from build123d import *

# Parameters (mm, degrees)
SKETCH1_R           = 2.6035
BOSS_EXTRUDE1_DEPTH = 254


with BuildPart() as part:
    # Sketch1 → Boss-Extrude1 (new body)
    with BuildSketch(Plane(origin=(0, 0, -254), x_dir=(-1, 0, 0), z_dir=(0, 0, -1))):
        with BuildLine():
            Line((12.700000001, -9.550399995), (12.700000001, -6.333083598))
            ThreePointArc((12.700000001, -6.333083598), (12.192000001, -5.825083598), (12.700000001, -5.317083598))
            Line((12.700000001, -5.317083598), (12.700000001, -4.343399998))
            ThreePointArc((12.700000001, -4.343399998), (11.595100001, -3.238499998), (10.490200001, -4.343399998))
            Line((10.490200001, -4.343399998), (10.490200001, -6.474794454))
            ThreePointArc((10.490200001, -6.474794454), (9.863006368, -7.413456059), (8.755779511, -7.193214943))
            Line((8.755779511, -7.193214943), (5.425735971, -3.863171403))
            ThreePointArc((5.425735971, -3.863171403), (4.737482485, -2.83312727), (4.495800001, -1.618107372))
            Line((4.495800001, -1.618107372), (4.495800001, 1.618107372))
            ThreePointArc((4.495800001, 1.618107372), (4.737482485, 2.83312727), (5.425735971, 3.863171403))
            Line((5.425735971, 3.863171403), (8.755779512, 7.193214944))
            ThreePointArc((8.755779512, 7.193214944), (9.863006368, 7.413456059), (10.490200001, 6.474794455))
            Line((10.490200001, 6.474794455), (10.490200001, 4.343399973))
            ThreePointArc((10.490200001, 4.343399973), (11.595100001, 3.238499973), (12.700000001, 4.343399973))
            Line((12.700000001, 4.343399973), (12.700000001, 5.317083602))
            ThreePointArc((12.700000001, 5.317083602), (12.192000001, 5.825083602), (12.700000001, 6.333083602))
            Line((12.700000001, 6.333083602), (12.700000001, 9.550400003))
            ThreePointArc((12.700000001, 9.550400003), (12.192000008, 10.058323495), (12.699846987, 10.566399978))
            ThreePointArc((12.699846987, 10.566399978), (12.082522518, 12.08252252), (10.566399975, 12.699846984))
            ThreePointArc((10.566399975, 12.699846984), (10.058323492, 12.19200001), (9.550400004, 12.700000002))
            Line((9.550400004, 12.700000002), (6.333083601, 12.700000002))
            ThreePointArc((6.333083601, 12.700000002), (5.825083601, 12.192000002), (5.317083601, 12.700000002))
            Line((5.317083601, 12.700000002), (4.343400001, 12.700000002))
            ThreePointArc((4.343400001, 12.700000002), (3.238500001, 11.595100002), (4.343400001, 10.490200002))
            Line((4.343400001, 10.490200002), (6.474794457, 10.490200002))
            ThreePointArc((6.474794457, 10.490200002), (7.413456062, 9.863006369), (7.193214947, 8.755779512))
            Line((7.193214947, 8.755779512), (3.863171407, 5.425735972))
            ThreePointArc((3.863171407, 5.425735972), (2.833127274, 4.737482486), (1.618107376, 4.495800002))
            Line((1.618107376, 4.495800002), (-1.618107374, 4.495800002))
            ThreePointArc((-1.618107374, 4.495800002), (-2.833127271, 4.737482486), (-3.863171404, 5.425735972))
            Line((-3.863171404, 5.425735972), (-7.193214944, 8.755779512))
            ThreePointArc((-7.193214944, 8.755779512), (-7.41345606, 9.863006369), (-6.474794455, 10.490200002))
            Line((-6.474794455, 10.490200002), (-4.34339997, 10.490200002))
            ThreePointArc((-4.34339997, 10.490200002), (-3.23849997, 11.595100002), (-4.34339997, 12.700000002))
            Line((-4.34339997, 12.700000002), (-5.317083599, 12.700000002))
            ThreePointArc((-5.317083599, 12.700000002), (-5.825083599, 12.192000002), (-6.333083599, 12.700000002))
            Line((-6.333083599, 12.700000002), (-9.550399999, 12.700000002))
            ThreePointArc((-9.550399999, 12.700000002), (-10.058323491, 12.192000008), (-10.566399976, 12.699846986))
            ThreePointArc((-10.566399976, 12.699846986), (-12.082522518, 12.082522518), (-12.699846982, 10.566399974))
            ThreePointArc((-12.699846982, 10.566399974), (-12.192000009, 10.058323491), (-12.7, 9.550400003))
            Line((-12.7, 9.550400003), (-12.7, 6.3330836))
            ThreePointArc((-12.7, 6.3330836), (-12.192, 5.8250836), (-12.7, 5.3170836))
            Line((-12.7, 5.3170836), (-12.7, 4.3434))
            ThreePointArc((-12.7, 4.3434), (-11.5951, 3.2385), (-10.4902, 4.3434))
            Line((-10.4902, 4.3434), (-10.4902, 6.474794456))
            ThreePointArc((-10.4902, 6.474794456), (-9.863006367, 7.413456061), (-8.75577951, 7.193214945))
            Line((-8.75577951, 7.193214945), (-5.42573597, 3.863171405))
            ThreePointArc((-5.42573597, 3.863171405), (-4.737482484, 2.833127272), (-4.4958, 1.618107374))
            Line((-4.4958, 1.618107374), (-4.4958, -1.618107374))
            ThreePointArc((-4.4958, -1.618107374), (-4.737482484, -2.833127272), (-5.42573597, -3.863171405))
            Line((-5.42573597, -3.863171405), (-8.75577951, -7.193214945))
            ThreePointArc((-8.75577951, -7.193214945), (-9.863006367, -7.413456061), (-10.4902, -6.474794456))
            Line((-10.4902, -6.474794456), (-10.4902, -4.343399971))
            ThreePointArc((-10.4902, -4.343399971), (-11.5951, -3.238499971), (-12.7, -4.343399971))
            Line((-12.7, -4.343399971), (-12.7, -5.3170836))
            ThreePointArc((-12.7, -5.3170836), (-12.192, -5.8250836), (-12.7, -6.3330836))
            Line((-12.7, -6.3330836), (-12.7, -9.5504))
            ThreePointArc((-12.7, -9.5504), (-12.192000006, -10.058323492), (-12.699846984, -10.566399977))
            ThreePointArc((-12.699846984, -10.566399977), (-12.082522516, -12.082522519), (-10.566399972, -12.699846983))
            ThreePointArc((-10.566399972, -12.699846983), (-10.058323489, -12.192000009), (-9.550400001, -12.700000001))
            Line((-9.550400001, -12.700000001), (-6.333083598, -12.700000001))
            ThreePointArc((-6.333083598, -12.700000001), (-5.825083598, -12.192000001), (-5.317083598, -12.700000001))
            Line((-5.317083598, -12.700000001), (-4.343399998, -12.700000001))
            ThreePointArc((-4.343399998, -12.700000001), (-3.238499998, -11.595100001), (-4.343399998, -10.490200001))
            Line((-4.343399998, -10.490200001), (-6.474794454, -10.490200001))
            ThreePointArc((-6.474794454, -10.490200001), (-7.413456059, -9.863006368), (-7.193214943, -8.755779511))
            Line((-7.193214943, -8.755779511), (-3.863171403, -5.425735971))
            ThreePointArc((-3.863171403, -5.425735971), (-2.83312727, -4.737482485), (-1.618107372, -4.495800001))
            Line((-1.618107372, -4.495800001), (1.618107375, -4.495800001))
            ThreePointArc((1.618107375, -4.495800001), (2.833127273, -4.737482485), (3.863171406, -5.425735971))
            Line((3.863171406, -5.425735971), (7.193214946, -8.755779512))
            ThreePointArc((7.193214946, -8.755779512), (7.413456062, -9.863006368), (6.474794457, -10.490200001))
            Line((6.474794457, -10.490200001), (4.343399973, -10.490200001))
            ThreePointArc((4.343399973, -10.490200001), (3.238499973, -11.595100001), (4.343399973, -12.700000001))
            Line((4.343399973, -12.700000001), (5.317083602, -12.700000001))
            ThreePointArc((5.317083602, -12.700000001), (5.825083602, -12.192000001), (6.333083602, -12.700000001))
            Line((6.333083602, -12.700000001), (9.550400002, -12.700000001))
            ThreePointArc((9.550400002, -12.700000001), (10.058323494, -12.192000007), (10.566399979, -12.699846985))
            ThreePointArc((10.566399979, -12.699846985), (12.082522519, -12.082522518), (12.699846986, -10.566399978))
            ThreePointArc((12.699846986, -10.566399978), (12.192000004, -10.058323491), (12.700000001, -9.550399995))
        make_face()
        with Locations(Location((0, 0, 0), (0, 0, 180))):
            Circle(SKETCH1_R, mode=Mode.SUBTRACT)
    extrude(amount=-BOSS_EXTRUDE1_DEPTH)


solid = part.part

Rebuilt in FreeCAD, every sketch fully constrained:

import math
import FreeCAD as App
import Part
import Sketcher
from FreeCAD import Vector
Q = App.Units.Quantity

doc = App.newDocument("Part")
body = doc.addObject("PartDesign::Body", "Body")

# Sketch on XY plane
sketch1 = doc.addObject("Sketcher::SketchObject", "Sketch")
body.addObject(sketch1)
sketch1.AttachmentSupport = (doc.XY_Plane, [""])
sketch1.MapMode = "FlatFace"
sketch1.AttachmentOffset = App.Placement(Vector(0, 0, -10 * 25.4), App.Rotation())
sketch1.addGeometry(Part.LineSegment(Vector(-12.7, -9.6, 0), Vector(-12.7, -6.3, 0)), False)
sketch1.addGeometry(Part.ArcOfCircle(Part.Circle(Vector(-12.7, -5.8, 0), Vector(0, 0, 1), 0.5), math.radians(-90), math.radians(90)), False)
sketch1.addGeometry(Part.LineSegment(Vector(-12.7, -5.3, 0), Vector(-12.7, -4.3, 0)), False)
sketch1.addGeometry(Part.ArcOfCircle(Part.Circle(Vector(-11.6, -4.3, 0), Vector(0, 0, 1), 1.1), math.radians(0), math.radians(180)), False)
sketch1.addGeometry(Part.LineSegment(Vector(-10.5, -4.3, 0), Vector(-10.5, -6.5, 0)), False)
sketch1.addGeometry(Part.ArcOfCircle(Part.Circle(Vector(-9.5, -6.5, 0), Vector(0, 0, 1), 1), math.radians(180), math.radians(315)), False)
sketch1.addGeometry(Part.LineSegment(Vector(-8.8, -7.2, 0), Vector(-5.4, -3.9, 0)), False)
sketch1.addGeometry(Part.ArcOfCircle(Part.Circle(Vector(-7.7, -1.6, 0), Vector(0, 0, 1), 3.2), math.radians(-45), math.radians(0)), False)
sketch1.addGeometry(Part.LineSegment(Vector(-4.5, -1.6, 0), Vector(-4.5, 1.6, 0)), False)
sketch1.addGeometry(Part.ArcOfCircle(Part.Circle(Vector(-7.7, 1.6, 0), Vector(0, 0, 1), 3.2), math.radians(0), math.radians(45)), False)
sketch1.addGeometry(Part.LineSegment(Vector(-5.4, 3.9, 0), Vector(-8.8, 7.2, 0)), False)
sketch1.addGeometry(Part.ArcOfCircle(Part.Circle(Vector(-9.5, 6.5, 0), Vector(0, 0, 1), 1), math.radians(45), math.radians(180)), False)
sketch1.addGeometry(Part.LineSegment(Vector(-10.5, 6.5, 0), Vector(-10.5, 4.3, 0)), False)
sketch1.addGeometry(Part.ArcOfCircle(Part.Circle(Vector(-11.6, 4.3, 0), Vector(0, 0, 1), 1.1), math.radians(180), math.radians(360)), False)
sketch1.addGeometry(Part.LineSegment(Vector(-12.7, 4.3, 0), Vector(-12.7, 5.3, 0)), False)
sketch1.addGeometry(Part.ArcOfCircle(Part.Circle(Vector(-12.7, 5.8, 0), Vector(0, 0, 1), 0.5), math.radians(-90), math.radians(90)), False)
sketch1.addGeometry(Part.LineSegment(Vector(-12.7, 6.3, 0), Vector(-12.7, 9.6, 0)), False)
sketch1.addGeometry(Part.ArcOfCircle(Part.Circle(Vector(-12.7, 10.1, 0), Vector(0, 0, 1), 0.5), math.radians(-90), math.radians(90)), False)
sketch1.addGeometry(Part.ArcOfCircle(Part.Circle(Vector(-10.6, 10.6, 0), Vector(0, 0, 1), 2.1), math.radians(89), math.radians(181)), False)
sketch1.addGeometry(Part.ArcOfCircle(Part.Circle(Vector(-10.1, 12.7, 0), Vector(0, 0, 1), 0.5), math.radians(-180), math.radians(0)), False)
sketch1.addGeometry(Part.LineSegment(Vector(-9.6, 12.7, 0), Vector(-6.3, 12.7, 0)), False)
sketch1.addGeometry(Part.ArcOfCircle(Part.Circle(Vector(-5.8, 12.7, 0), Vector(0, 0, 1), 0.5), math.radians(180), math.radians(360)), False)
sketch1.addGeometry(Part.LineSegment(Vector(-5.3, 12.7, 0), Vector(-4.3, 12.7, 0)), False)
sketch1.addGeometry(Part.ArcOfCircle(Part.Circle(Vector(-4.3, 11.6, 0), Vector(0, 0, 1), 1.1), math.radians(-90), math.radians(90)), False)
sketch1.addGeometry(Part.LineSegment(Vector(-4.3, 10.5, 0), Vector(-6.5, 10.5, 0)), False)
sketch1.addGeometry(Part.ArcOfCircle(Part.Circle(Vector(-6.5, 9.5, 0), Vector(0, 0, 1), 1), math.radians(90), math.radians(225)), False)
sketch1.addGeometry(Part.LineSegment(Vector(-7.2, 8.8, 0), Vector(-3.9, 5.4, 0)), False)
sketch1.addGeometry(Part.ArcOfCircle(Part.Circle(Vector(-1.6, 7.7, 0), Vector(0, 0, 1), 3.2), math.radians(-135), math.radians(-90)), False)
sketch1.addGeometry(Part.LineSegment(Vector(-1.6, 4.5, 0), Vector(1.6, 4.5, 0)), False)
sketch1.addGeometry(Part.ArcOfCircle(Part.Circle(Vector(1.6, 7.7, 0), Vector(0, 0, 1), 3.2), math.radians(-90), math.radians(-45)), False)
sketch1.addGeometry(Part.LineSegment(Vector(3.9, 5.4, 0), Vector(7.2, 8.8, 0)), False)
sketch1.addGeometry(Part.ArcOfCircle(Part.Circle(Vector(6.5, 9.5, 0), Vector(0, 0, 1), 1), math.radians(-45), math.radians(90)), False)
sketch1.addGeometry(Part.LineSegment(Vector(6.5, 10.5, 0), Vector(4.3, 10.5, 0)), False)
sketch1.addGeometry(Part.ArcOfCircle(Part.Circle(Vector(4.3, 11.6, 0), Vector(0, 0, 1), 1.1), math.radians(90), math.radians(270)), False)
sketch1.addGeometry(Part.LineSegment(Vector(4.3, 12.7, 0), Vector(5.3, 12.7, 0)), False)
sketch1.addGeometry(Part.ArcOfCircle(Part.Circle(Vector(5.8, 12.7, 0), Vector(0, 0, 1), 0.5), math.radians(180), math.radians(360)), False)
sketch1.addGeometry(Part.LineSegment(Vector(6.3, 12.7, 0), Vector(9.6, 12.7, 0)), False)
sketch1.addGeometry(Part.ArcOfCircle(Part.Circle(Vector(10.1, 12.7, 0), Vector(0, 0, 1), 0.5), math.radians(180), math.radians(360)), False)
sketch1.addGeometry(Part.ArcOfCircle(Part.Circle(Vector(10.6, 10.6, 0), Vector(0, 0, 1), 2.1), math.radians(-1), math.radians(91)), False)
sketch1.addGeometry(Part.ArcOfCircle(Part.Circle(Vector(12.7, 10.1, 0), Vector(0, 0, 1), 0.5), math.radians(90), math.radians(270)), False)
sketch1.addGeometry(Part.LineSegment(Vector(12.7, 9.6, 0), Vector(12.7, 6.3, 0)), False)
sketch1.addGeometry(Part.ArcOfCircle(Part.Circle(Vector(12.7, 5.8, 0), Vector(0, 0, 1), 0.5), math.radians(90), math.radians(270)), False)
sketch1.addGeometry(Part.LineSegment(Vector(12.7, 5.3, 0), Vector(12.7, 4.3, 0)), False)
sketch1.addGeometry(Part.ArcOfCircle(Part.Circle(Vector(11.6, 4.3, 0), Vector(0, 0, 1), 1.1), math.radians(180), math.radians(360)), False)
sketch1.addGeometry(Part.LineSegment(Vector(10.5, 4.3, 0), Vector(10.5, 6.5, 0)), False)
sketch1.addGeometry(Part.ArcOfCircle(Part.Circle(Vector(9.5, 6.5, 0), Vector(0, 0, 1), 1), math.radians(0), math.radians(135)), False)
sketch1.addGeometry(Part.LineSegment(Vector(8.8, 7.2, 0), Vector(5.4, 3.9, 0)), False)
sketch1.addGeometry(Part.ArcOfCircle(Part.Circle(Vector(7.7, 1.6, 0), Vector(0, 0, 1), 3.2), math.radians(135), math.radians(180)), False)
sketch1.addGeometry(Part.LineSegment(Vector(4.5, 1.6, 0), Vector(4.5, -1.6, 0)), False)
sketch1.addGeometry(Part.ArcOfCircle(Part.Circle(Vector(7.7, -1.6, 0), Vector(0, 0, 1), 3.2), math.radians(180), math.radians(225)), False)
sketch1.addGeometry(Part.LineSegment(Vector(5.4, -3.9, 0), Vector(8.8, -7.2, 0)), False)
sketch1.addGeometry(Part.ArcOfCircle(Part.Circle(Vector(9.5, -6.5, 0), Vector(0, 0, 1), 1), math.radians(-135), math.radians(0)), False)
sketch1.addGeometry(Part.LineSegment(Vector(10.5, -6.5, 0), Vector(10.5, -4.3, 0)), False)
sketch1.addGeometry(Part.ArcOfCircle(Part.Circle(Vector(11.6, -4.3, 0), Vector(0, 0, 1), 1.1), math.radians(0), math.radians(180)), False)
sketch1.addGeometry(Part.LineSegment(Vector(12.7, -4.3, 0), Vector(12.7, -5.3, 0)), False)
sketch1.addGeometry(Part.ArcOfCircle(Part.Circle(Vector(12.7, -5.8, 0), Vector(0, 0, 1), 0.5), math.radians(90), math.radians(270)), False)
sketch1.addGeometry(Part.LineSegment(Vector(12.7, -6.3, 0), Vector(12.7, -9.6, 0)), False)
sketch1.addGeometry(Part.ArcOfCircle(Part.Circle(Vector(12.7, -10.1, 0), Vector(0, 0, 1), 0.5), math.radians(90), math.radians(270)), False)
sketch1.addGeometry(Part.ArcOfCircle(Part.Circle(Vector(10.6, -10.6, 0), Vector(0, 0, 1), 2.1), math.radians(-91), math.radians(1)), False)
sketch1.addGeometry(Part.ArcOfCircle(Part.Circle(Vector(10.1, -12.7, 0), Vector(0, 0, 1), 0.5), math.radians(0), math.radians(180)), False)
sketch1.addGeometry(Part.LineSegment(Vector(9.6, -12.7, 0), Vector(6.3, -12.7, 0)), False)
sketch1.addGeometry(Part.ArcOfCircle(Part.Circle(Vector(5.8, -12.7, 0), Vector(0, 0, 1), 0.5), math.radians(0), math.radians(180)), False)
sketch1.addGeometry(Part.LineSegment(Vector(5.3, -12.7, 0), Vector(4.3, -12.7, 0)), False)
sketch1.addGeometry(Part.ArcOfCircle(Part.Circle(Vector(4.3, -11.6, 0), Vector(0, 0, 1), 1.1), math.radians(90), math.radians(270)), False)
sketch1.addGeometry(Part.LineSegment(Vector(4.3, -10.5, 0), Vector(6.5, -10.5, 0)), False)
sketch1.addGeometry(Part.ArcOfCircle(Part.Circle(Vector(6.5, -9.5, 0), Vector(0, 0, 1), 1), math.radians(-90), math.radians(45)), False)
sketch1.addGeometry(Part.LineSegment(Vector(7.2, -8.8, 0), Vector(3.9, -5.4, 0)), False)
sketch1.addGeometry(Part.ArcOfCircle(Part.Circle(Vector(1.6, -7.7, 0), Vector(0, 0, 1), 3.2), math.radians(45), math.radians(90)), False)
sketch1.addGeometry(Part.LineSegment(Vector(1.6, -4.5, 0), Vector(-1.6, -4.5, 0)), False)
sketch1.addGeometry(Part.ArcOfCircle(Part.Circle(Vector(-1.6, -7.7, 0), Vector(0, 0, 1), 3.2), math.radians(90), math.radians(135)), False)
sketch1.addGeometry(Part.LineSegment(Vector(-3.9, -5.4, 0), Vector(-7.2, -8.8, 0)), False)
sketch1.addGeometry(Part.ArcOfCircle(Part.Circle(Vector(-6.5, -9.5, 0), Vector(0, 0, 1), 1), math.radians(135), math.radians(270)), False)
sketch1.addGeometry(Part.LineSegment(Vector(-6.5, -10.5, 0), Vector(-4.3, -10.5, 0)), False)
sketch1.addGeometry(Part.ArcOfCircle(Part.Circle(Vector(-4.3, -11.6, 0), Vector(0, 0, 1), 1.1), math.radians(-90), math.radians(90)), False)
sketch1.addGeometry(Part.LineSegment(Vector(-4.3, -12.7, 0), Vector(-5.3, -12.7, 0)), False)
sketch1.addGeometry(Part.ArcOfCircle(Part.Circle(Vector(-5.8, -12.7, 0), Vector(0, 0, 1), 0.5), math.radians(0), math.radians(180)), False)
sketch1.addGeometry(Part.LineSegment(Vector(-6.3, -12.7, 0), Vector(-9.6, -12.7, 0)), False)
sketch1.addGeometry(Part.ArcOfCircle(Part.Circle(Vector(-10.1, -12.7, 0), Vector(0, 0, 1), 0.5), math.radians(0), math.radians(180)), False)
sketch1.addGeometry(Part.ArcOfCircle(Part.Circle(Vector(-10.6, -10.6, 0), Vector(0, 0, 1), 2.1), math.radians(179), math.radians(271)), False)
sketch1.addGeometry(Part.ArcOfCircle(Part.Circle(Vector(-12.7, -10.1, 0), Vector(0, 0, 1), 0.5), math.radians(-90), math.radians(90)), False)
sketch1.addGeometry(Part.Circle(Vector(0, 0, 0), Vector(0, 0, 1), 2.6), False)
sketch1.addConstraint(Sketcher.Constraint("Coincident", 0, 2, 1, 1))
sketch1.addConstraint(Sketcher.Constraint("Coincident", 1, 2, 2, 1))
sketch1.addConstraint(Sketcher.Constraint("Tangent", 2, 2, 3, 2))
sketch1.addConstraint(Sketcher.Constraint("Tangent", 3, 1, 4, 1))
sketch1.addConstraint(Sketcher.Constraint("Tangent", 4, 2, 5, 1))
sketch1.addConstraint(Sketcher.Constraint("Tangent", 5, 2, 6, 1))
sketch1.addConstraint(Sketcher.Constraint("Tangent", 6, 2, 7, 1))
sketch1.addConstraint(Sketcher.Constraint("Tangent", 7, 2, 8, 1))
sketch1.addConstraint(Sketcher.Constraint("Tangent", 8, 2, 9, 1))
sketch1.addConstraint(Sketcher.Constraint("Tangent", 9, 2, 10, 1))
sketch1.addConstraint(Sketcher.Constraint("Tangent", 10, 2, 11, 1))
sketch1.addConstraint(Sketcher.Constraint("Tangent", 11, 2, 12, 1))
sketch1.addConstraint(Sketcher.Constraint("Tangent", 12, 2, 13, 2))
sketch1.addConstraint(Sketcher.Constraint("Tangent", 13, 1, 14, 1))
sketch1.addConstraint(Sketcher.Constraint("Coincident", 14, 2, 15, 1))
sketch1.addConstraint(Sketcher.Constraint("Coincident", 15, 2, 16, 1))
sketch1.addConstraint(Sketcher.Constraint("Coincident", 16, 2, 17, 1))
sketch1.addConstraint(Sketcher.Constraint("Coincident", 17, 2, 18, 2))
sketch1.addConstraint(Sketcher.Constraint("Coincident", 18, 1, 19, 1))
sketch1.addConstraint(Sketcher.Constraint("Coincident", 19, 2, 20, 1))
sketch1.addConstraint(Sketcher.Constraint("Coincident", 20, 2, 21, 1))
sketch1.addConstraint(Sketcher.Constraint("Coincident", 21, 2, 22, 1))
sketch1.addConstraint(Sketcher.Constraint("Tangent", 22, 2, 23, 2))
sketch1.addConstraint(Sketcher.Constraint("Tangent", 23, 1, 24, 1))
sketch1.addConstraint(Sketcher.Constraint("Tangent", 24, 2, 25, 1))
sketch1.addConstraint(Sketcher.Constraint("Tangent", 25, 2, 26, 1))
sketch1.addConstraint(Sketcher.Constraint("Tangent", 26, 2, 27, 1))
sketch1.addConstraint(Sketcher.Constraint("Tangent", 27, 2, 28, 1))
sketch1.addConstraint(Sketcher.Constraint("Tangent", 28, 2, 29, 1))
sketch1.addConstraint(Sketcher.Constraint("Tangent", 29, 2, 30, 1))
sketch1.addConstraint(Sketcher.Constraint("Tangent", 30, 2, 31, 1))
sketch1.addConstraint(Sketcher.Constraint("Tangent", 31, 2, 32, 1))
sketch1.addConstraint(Sketcher.Constraint("Tangent", 32, 2, 33, 2))
sketch1.addConstraint(Sketcher.Constraint("Tangent", 33, 1, 34, 1))
sketch1.addConstraint(Sketcher.Constraint("Coincident", 34, 2, 35, 1))
sketch1.addConstraint(Sketcher.Constraint("Coincident", 35, 2, 36, 1))
sketch1.addConstraint(Sketcher.Constraint("Coincident", 36, 2, 37, 1))
sketch1.addConstraint(Sketcher.Constraint("Coincident", 37, 2, 38, 2))
sketch1.addConstraint(Sketcher.Constraint("Coincident", 38, 1, 39, 1))
sketch1.addConstraint(Sketcher.Constraint("Coincident", 39, 2, 40, 1))
sketch1.addConstraint(Sketcher.Constraint("Coincident", 40, 2, 41, 1))
sketch1.addConstraint(Sketcher.Constraint("Coincident", 41, 2, 42, 1))
sketch1.addConstraint(Sketcher.Constraint("Tangent", 42, 2, 43, 2))
sketch1.addConstraint(Sketcher.Constraint("Tangent", 43, 1, 44, 1))
sketch1.addConstraint(Sketcher.Constraint("Tangent", 44, 2, 45, 1))
sketch1.addConstraint(Sketcher.Constraint("Tangent", 45, 2, 46, 1))
sketch1.addConstraint(Sketcher.Constraint("Tangent", 46, 2, 47, 1))
sketch1.addConstraint(Sketcher.Constraint("Tangent", 47, 2, 48, 1))
sketch1.addConstraint(Sketcher.Constraint("Tangent", 48, 2, 49, 1))
sketch1.addConstraint(Sketcher.Constraint("Tangent", 49, 2, 50, 1))
sketch1.addConstraint(Sketcher.Constraint("Tangent", 50, 2, 51, 1))
sketch1.addConstraint(Sketcher.Constraint("Tangent", 51, 2, 52, 1))
sketch1.addConstraint(Sketcher.Constraint("Tangent", 52, 2, 53, 2))
sketch1.addConstraint(Sketcher.Constraint("Tangent", 53, 1, 54, 1))
sketch1.addConstraint(Sketcher.Constraint("Coincident", 54, 2, 55, 1))
sketch1.addConstraint(Sketcher.Constraint("Coincident", 55, 2, 56, 1))
sketch1.addConstraint(Sketcher.Constraint("Coincident", 56, 2, 57, 1))
sketch1.addConstraint(Sketcher.Constraint("Coincident", 57, 2, 58, 2))
sketch1.addConstraint(Sketcher.Constraint("Coincident", 58, 1, 59, 1))
sketch1.addConstraint(Sketcher.Constraint("Coincident", 59, 2, 60, 1))
sketch1.addConstraint(Sketcher.Constraint("Coincident", 60, 2, 61, 1))
sketch1.addConstraint(Sketcher.Constraint("Coincident", 61, 2, 62, 1))
sketch1.addConstraint(Sketcher.Constraint("Tangent", 62, 2, 63, 2))
sketch1.addConstraint(Sketcher.Constraint("Tangent", 63, 1, 64, 1))
sketch1.addConstraint(Sketcher.Constraint("Tangent", 64, 2, 65, 1))
sketch1.addConstraint(Sketcher.Constraint("Tangent", 65, 2, 66, 1))
sketch1.addConstraint(Sketcher.Constraint("Tangent", 66, 2, 67, 1))
sketch1.addConstraint(Sketcher.Constraint("Tangent", 67, 2, 68, 1))
sketch1.addConstraint(Sketcher.Constraint("Tangent", 68, 2, 69, 1))
sketch1.addConstraint(Sketcher.Constraint("Tangent", 69, 2, 70, 1))
sketch1.addConstraint(Sketcher.Constraint("Tangent", 70, 2, 71, 1))
sketch1.addConstraint(Sketcher.Constraint("Tangent", 71, 2, 72, 1))
sketch1.addConstraint(Sketcher.Constraint("Tangent", 72, 2, 73, 2))
sketch1.addConstraint(Sketcher.Constraint("Tangent", 73, 1, 74, 1))
sketch1.addConstraint(Sketcher.Constraint("Coincident", 74, 2, 75, 1))
sketch1.addConstraint(Sketcher.Constraint("Coincident", 75, 2, 76, 1))
sketch1.addConstraint(Sketcher.Constraint("Coincident", 76, 2, 77, 1))
sketch1.addConstraint(Sketcher.Constraint("Coincident", 77, 2, 78, 2))
sketch1.addConstraint(Sketcher.Constraint("Coincident", 78, 1, 79, 1))
sketch1.addConstraint(Sketcher.Constraint("Coincident", 79, 2, 0, 1))
sketch1.addConstraint(Sketcher.Constraint("Vertical", 0))
sketch1.addConstraint(Sketcher.Constraint("Vertical", 2))
sketch1.addConstraint(Sketcher.Constraint("Vertical", 4))
sketch1.addConstraint(Sketcher.Constraint("Vertical", 8))
sketch1.addConstraint(Sketcher.Constraint("Vertical", 12))
sketch1.addConstraint(Sketcher.Constraint("Vertical", 14))
sketch1.addConstraint(Sketcher.Constraint("Vertical", 16))
sketch1.addConstraint(Sketcher.Constraint("Horizontal", 20))
sketch1.addConstraint(Sketcher.Constraint("Horizontal", 22))
sketch1.addConstraint(Sketcher.Constraint("Horizontal", 24))
sketch1.addConstraint(Sketcher.Constraint("Horizontal", 28))
sketch1.addConstraint(Sketcher.Constraint("Horizontal", 32))
sketch1.addConstraint(Sketcher.Constraint("Horizontal", 34))
sketch1.addConstraint(Sketcher.Constraint("Horizontal", 36))
sketch1.addConstraint(Sketcher.Constraint("Vertical", 40))
sketch1.addConstraint(Sketcher.Constraint("Vertical", 42))
sketch1.addConstraint(Sketcher.Constraint("Vertical", 44))
sketch1.addConstraint(Sketcher.Constraint("Vertical", 48))
sketch1.addConstraint(Sketcher.Constraint("Vertical", 52))
sketch1.addConstraint(Sketcher.Constraint("Vertical", 54))
sketch1.addConstraint(Sketcher.Constraint("Vertical", 56))
sketch1.addConstraint(Sketcher.Constraint("Horizontal", 60))
sketch1.addConstraint(Sketcher.Constraint("Horizontal", 62))
sketch1.addConstraint(Sketcher.Constraint("Horizontal", 64))
sketch1.addConstraint(Sketcher.Constraint("Horizontal", 68))
sketch1.addConstraint(Sketcher.Constraint("Horizontal", 72))
sketch1.addConstraint(Sketcher.Constraint("Horizontal", 74))
sketch1.addConstraint(Sketcher.Constraint("Horizontal", 76))
sketch1.addConstraint(Sketcher.Constraint("Coincident", 80, 3, -1, 1))
sketch1.addConstraint(Sketcher.Constraint("Equal", 7, 9))
sketch1.addConstraint(Sketcher.Constraint("Equal", 5, 11))
sketch1.addConstraint(Sketcher.Constraint("Equal", 3, 13))
sketch1.addConstraint(Sketcher.Constraint("Equal", 1, 15))
sketch1.addConstraint(Sketcher.Constraint("Equal", 15, 17))
sketch1.addConstraint(Sketcher.Constraint("Equal", 17, 19))
sketch1.addConstraint(Sketcher.Constraint("Equal", 19, 21))
sketch1.addConstraint(Sketcher.Constraint("Equal", 13, 23))
sketch1.addConstraint(Sketcher.Constraint("Equal", 11, 25))
sketch1.addConstraint(Sketcher.Constraint("Equal", 9, 27))
sketch1.addConstraint(Sketcher.Constraint("Equal", 27, 29))
sketch1.addConstraint(Sketcher.Constraint("Equal", 25, 31))
sketch1.addConstraint(Sketcher.Constraint("Equal", 23, 33))
sketch1.addConstraint(Sketcher.Constraint("Equal", 21, 35))
sketch1.addConstraint(Sketcher.Constraint("Equal", 35, 37))
sketch1.addConstraint(Sketcher.Constraint("Equal", 18, 38))
sketch1.addConstraint(Sketcher.Constraint("Equal", 37, 39))
sketch1.addConstraint(Sketcher.Constraint("Equal", 39, 41))
sketch1.addConstraint(Sketcher.Constraint("Equal", 33, 43))
sketch1.addConstraint(Sketcher.Constraint("Equal", 31, 45))
sketch1.addConstraint(Sketcher.Constraint("Equal", 29, 47))
sketch1.addConstraint(Sketcher.Constraint("Equal", 47, 49))
sketch1.addConstraint(Sketcher.Constraint("Equal", 45, 51))
sketch1.addConstraint(Sketcher.Constraint("Equal", 43, 53))
sketch1.addConstraint(Sketcher.Constraint("Equal", 41, 55))
sketch1.addConstraint(Sketcher.Constraint("Equal", 55, 57))
sketch1.addConstraint(Sketcher.Constraint("Equal", 38, 58))
sketch1.addConstraint(Sketcher.Constraint("Equal", 57, 59))
sketch1.addConstraint(Sketcher.Constraint("Equal", 59, 61))
sketch1.addConstraint(Sketcher.Constraint("Equal", 53, 63))
sketch1.addConstraint(Sketcher.Constraint("Equal", 51, 65))
sketch1.addConstraint(Sketcher.Constraint("Equal", 49, 67))
sketch1.addConstraint(Sketcher.Constraint("Equal", 67, 69))
sketch1.addConstraint(Sketcher.Constraint("Equal", 65, 71))
sketch1.addConstraint(Sketcher.Constraint("Equal", 63, 73))
sketch1.addConstraint(Sketcher.Constraint("Equal", 61, 75))
sketch1.addConstraint(Sketcher.Constraint("Equal", 75, 77))
sketch1.addConstraint(Sketcher.Constraint("Equal", 58, 78))
sketch1.addConstraint(Sketcher.Constraint("Equal", 77, 79))
sketch1.addConstraint(Sketcher.Constraint("Symmetric", 1, 3, 41, 3, -1, 1))
sketch1.addConstraint(Sketcher.Constraint("Symmetric", 3, 3, 43, 3, -1, 1))
sketch1.addConstraint(Sketcher.Constraint("Symmetric", 7, 3, 47, 3, -1, 1))
sketch1.addConstraint(Sketcher.Constraint("Symmetric", 11, 3, 51, 3, -1, 1))
sketch1.addConstraint(Sketcher.Constraint("Symmetric", 15, 3, 55, 3, -1, 1))
sketch1.addConstraint(Sketcher.Constraint("Symmetric", 17, 3, 57, 3, -1, 1))
sketch1.addConstraint(Sketcher.Constraint("Symmetric", 18, 3, 58, 3, -1, 1))
sketch1.addConstraint(Sketcher.Constraint("Symmetric", 19, 3, 59, 3, -1, 1))
sketch1.addConstraint(Sketcher.Constraint("Symmetric", 21, 3, 61, 3, -1, 1))
sketch1.addConstraint(Sketcher.Constraint("Symmetric", 23, 3, 63, 3, -1, 1))
sketch1.addConstraint(Sketcher.Constraint("Symmetric", 27, 3, 67, 3, -1, 1))
sketch1.addConstraint(Sketcher.Constraint("Symmetric", 31, 3, 71, 3, -1, 1))
sketch1.addConstraint(Sketcher.Constraint("Symmetric", 35, 3, 75, 3, -1, 1))
sketch1.addConstraint(Sketcher.Constraint("Symmetric", 37, 3, 77, 3, -1, 1))
sketch1.addConstraint(Sketcher.Constraint("Symmetric", 38, 3, 78, 3, -1, 1))
sketch1.addConstraint(Sketcher.Constraint("Symmetric", 39, 3, 79, 3, -1, 1))
sketch1.addConstraint(Sketcher.Constraint("Symmetric", 25, 3, 31, 3, -2))
sketch1.addConstraint(Sketcher.Constraint("Symmetric", 21, 3, 35, 3, -2))
sketch1.addConstraint(Sketcher.Constraint("Symmetric", 19, 3, 37, 3, -2))
sketch1.addConstraint(Sketcher.Constraint("Symmetric", 18, 3, 38, 3, -2))
sketch1.addConstraint(Sketcher.Constraint("Symmetric", 17, 3, 39, 3, -2))
sketch1.addConstraint(Sketcher.Constraint("Symmetric", 15, 3, 41, 3, -2))
sketch1.addConstraint(Sketcher.Constraint("Symmetric", 13, 3, 43, 3, -2))
sketch1.addConstraint(Sketcher.Constraint("Symmetric", 10, 2, 45, 2, -2))
sketch1.addConstraint(Sketcher.Constraint("Symmetric", 6, 2, 49, 2, -2))
sketch1.addConstraint(Sketcher.Constraint("Symmetric", 66, 2, 69, 2, -2))
sketch1.addConstraint(Sketcher.Constraint("Perpendicular", 6, 10))
sketch1.addConstraint(Sketcher.Constraint("Parallel", 10, 26))
sketch1.addConstraint(Sketcher.Constraint("Perpendicular", 26, 30))
sketch1.addConstraint(Sketcher.Constraint("Horizontal", 19, 3, 21, 3))
sketch1.addConstraint(Sketcher.Constraint("Horizontal", 3, 3, 53, 3))
sketch1.addConstraint(Sketcher.Constraint("Horizontal", 37, 3, 19, 2))
sketch1.addConstraint(Sketcher.Constraint("Horizontal", 20, 2, 21, 2))
sketch1.addConstraint(Sketcher.Constraint("Horizontal", 34, 2, 35, 2))
sketch1.addConstraint(Sketcher.Constraint("Horizontal", 77, 3, 59, 2))
sketch1.addConstraint(Sketcher.Constraint("Horizontal", 74, 2, 75, 2))
sketch1.addConstraint(Sketcher.Constraint("Vertical", 15, 3, 17, 3))
sketch1.addConstraint(Sketcher.Constraint("Vertical", 33, 3, 63, 3))
sketch1.addConstraint(Sketcher.Constraint("Vertical", 23, 3, 73, 3))
sketch1.addConstraint(Sketcher.Constraint("Vertical", 79, 3, 0, 2))
sketch1.addConstraint(Sketcher.Constraint("Vertical", 0, 2, 1, 2))
sketch1.addConstraint(Sketcher.Constraint("Vertical", 14, 2, 15, 2))
sketch1.addConstraint(Sketcher.Constraint("Vertical", 57, 3, 39, 2))
sketch1.addConstraint(Sketcher.Constraint("Vertical", 54, 2, 55, 2))
sketch1.addConstraint(Sketcher.Constraint("Equal", 76, 0))
sketch1.addConstraint(Sketcher.Constraint("Equal", 74, 2))
sketch1.addConstraint(Sketcher.Constraint("Equal", 72, 4))
sketch1.addConstraint(Sketcher.Constraint("Equal", 68, 8))
sketch1.addConstraint(Sketcher.Constraint("Equal", 10, 26))
sketch1.addConstraint(Sketcher.Constraint("Radius", 1, Q("0.02 in")))
sketch1.addConstraint(Sketcher.Constraint("Radius", 5, Q("0.04 in")))
sketch1.addConstraint(Sketcher.Constraint("Diameter", 80, Q("0.205 in")))
sketch1.addConstraint(Sketcher.Constraint("Radius", 7, Q("0.125 in")))
sketch1.addConstraint(Sketcher.Constraint("Radius", 18, Q("0.083 in")))
sketch1.addConstraint(Sketcher.Constraint("DistanceX", 1, 3, -1, 1, Q("0.5 in")))
sketch1.addConstraint(Sketcher.Constraint("DistanceY", -1, 1, 19, 3, Q("0.5 in")))
sketch1.addConstraint(Sketcher.Constraint("Radius", 3, Q("0.0435 in")))
sketch1.addConstraint(Sketcher.Constraint("DistanceY", 3, 3, -1, 1, Q("0.171 in")))
sketch1.addConstraint(Sketcher.Constraint("DistanceX", 7, 3, -1, 1, Q("0.302 in")))
sketch1.addConstraint(Sketcher.Constraint("DistanceY", -1, 1, 17, 3, Q("0.396 in")))
sketch1.addConstraint(Sketcher.Constraint("DistanceX", 18, 3, -1, 1, Q("0.417 in")))
sketch1.addConstraint(Sketcher.Constraint("DistanceY", -1, 1, 18, 3, Q("0.417 in")))
sketch1.addConstraint(Sketcher.Constraint("DistanceX", 20, 1, 20, 2, Q("3.217316 mm")))
sketch1.addConstraint(Sketcher.Constraint("DistanceX", 24, 2, 24, 1, Q("2.131394 mm")))
pad1 = doc.addObject("PartDesign::Pad", "Pad")
body.addObject(pad1)
pad1.Profile = sketch1
pad1.Length = Q("10 in")

doc.recompute()
